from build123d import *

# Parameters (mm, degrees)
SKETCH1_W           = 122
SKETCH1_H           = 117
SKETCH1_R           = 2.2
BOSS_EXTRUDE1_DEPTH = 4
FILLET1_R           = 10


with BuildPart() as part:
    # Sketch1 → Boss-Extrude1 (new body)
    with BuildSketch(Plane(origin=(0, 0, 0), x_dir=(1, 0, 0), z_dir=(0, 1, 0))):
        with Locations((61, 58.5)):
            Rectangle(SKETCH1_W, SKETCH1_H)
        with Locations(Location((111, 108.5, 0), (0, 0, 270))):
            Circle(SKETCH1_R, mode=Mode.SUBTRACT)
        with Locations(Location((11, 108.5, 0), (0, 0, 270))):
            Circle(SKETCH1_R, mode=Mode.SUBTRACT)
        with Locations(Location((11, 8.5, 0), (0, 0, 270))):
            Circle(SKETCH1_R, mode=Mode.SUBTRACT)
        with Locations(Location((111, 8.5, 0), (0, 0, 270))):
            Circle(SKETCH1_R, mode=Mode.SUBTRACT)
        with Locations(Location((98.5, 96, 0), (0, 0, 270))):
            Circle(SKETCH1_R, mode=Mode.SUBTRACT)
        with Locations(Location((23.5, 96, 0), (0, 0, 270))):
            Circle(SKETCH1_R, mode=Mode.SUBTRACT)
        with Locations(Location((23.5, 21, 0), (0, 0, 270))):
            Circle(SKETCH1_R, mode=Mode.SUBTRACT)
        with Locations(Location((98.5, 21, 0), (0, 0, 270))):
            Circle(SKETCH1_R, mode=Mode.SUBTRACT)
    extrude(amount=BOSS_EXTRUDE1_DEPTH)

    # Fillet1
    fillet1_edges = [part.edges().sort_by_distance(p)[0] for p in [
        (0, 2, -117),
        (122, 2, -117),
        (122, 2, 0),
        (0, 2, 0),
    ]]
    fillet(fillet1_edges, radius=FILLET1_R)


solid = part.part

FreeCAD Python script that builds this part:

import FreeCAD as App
import Part
import Sketcher


def edges_at(feature, points):
    """Names of the edges that pass closest to the given points."""
    edges = feature.Shape.Edges
    near = lambda p: min(range(len(edges)), key=lambda i: edges[i].distToShape(Part.Vertex(*p))[0])
    return sorted({f"Edge{near(p) + 1}" for p in points})


def add_polygon(sketch, points):
    """Adds a closed chain of lines whose ends are joined by coincident constraints."""
    first, n = sketch.GeometryCount, len(points)
    for a, b in zip(points, points[1:] + points[:1]):
        sketch.addGeometry(Part.LineSegment(App.Vector(*a, 0), App.Vector(*b, 0)), False)
    for i in range(n):
        sketch.addConstraint(Sketcher.Constraint("Coincident", first + i, 2, first + (i + 1) % n, 1))

doc = App.newDocument("Part")
body = doc.addObject("PartDesign::Body", "Body")

# Sketch on XZ plane
sketch1 = body.newObject("Sketcher::SketchObject", "Sketch")
sketch1.AttachmentSupport = (doc.getObject("XZ_Plane"), [""])
sketch1.MapMode = "FlatFace"
add_polygon(sketch1, [(0, -117), (0, 0), (122, 0), (122, -117)])  # lines 0-3
sketch1.addGeometry(Part.Circle(App.Vector(11, -8.5, 0), App.Vector(0, 0, 1), 2.2), False)  # 4
sketch1.addGeometry(Part.Circle(App.Vector(23.5, -21, 0), App.Vector(0, 0, 1), 2.2), False)  # 5
sketch1.addGeometry(Part.Circle(App.Vector(111, -8.5, 0), App.Vector(0, 0, 1), 2.2), False)  # 6
sketch1.addGeometry(Part.Circle(App.Vector(98.5, -21, 0), App.Vector(0, 0, 1), 2.2), False)  # 7
sketch1.addGeometry(Part.Circle(App.Vector(23.5, -96, 0), App.Vector(0, 0, 1), 2.2), False)  # 8
sketch1.addGeometry(Part.Circle(App.Vector(11, -108.5, 0), App.Vector(0, 0, 1), 2.2), False)  # 9
sketch1.addGeometry(Part.Circle(App.Vector(98.5, -96, 0), App.Vector(0, 0, 1), 2.2), False)  # 10
sketch1.addGeometry(Part.Circle(App.Vector(111, -108.5, 0), App.Vector(0, 0, 1), 2.2), False)  # 11
sketch1.addConstraint([
    Sketcher.Constraint("Vertical", 0),
    Sketcher.Constraint("Horizontal", 1),
    Sketcher.Constraint("Vertical", 2),
    Sketcher.Constraint("Horizontal", 3),
    Sketcher.Constraint("Coincident", 0, 2, -1, 1),
    Sketcher.Constraint("Equal", 4, 5),
    Sketcher.Constraint("Equal", 5, 6),
    Sketcher.Constraint("Equal", 6, 7),
    Sketcher.Constraint("Equal", 7, 8),
    Sketcher.Constraint("Equal", 8, 9),
    Sketcher.Constraint("Equal", 9, 10),
    Sketcher.Constraint("Equal", 10, 11),
    Sketcher.Constraint("Horizontal", 4, 3, 6, 3),
    Sketcher.Constraint("Horizontal", 5, 3, 7, 3),
    Sketcher.Constraint("Horizontal", 8, 3, 10, 3),
    Sketcher.Constraint("Horizontal", 9, 3, 11, 3),
    Sketcher.Constraint("Vertical", 5, 3, 8, 3),
    Sketcher.Constraint("Vertical", 4, 3, 9, 3),
    Sketcher.Constraint("Vertical", 7, 3, 10, 3),
    Sketcher.Constraint("Vertical", 6, 3, 11, 3),
    Sketcher.Constraint("Diameter", 4, 4.4),
    Sketcher.Constraint("DistanceX", 1, 1, 1, 2, 122.0),
    Sketcher.Constraint("DistanceY", 0, 1, 0, 2, 117.0),
    Sketcher.Constraint("DistanceX", -1, 1, 4, 3, 11.0),
    Sketcher.Constraint("DistanceY", 5, 3, -1, 1, 21.0),
    Sketcher.Constraint("DistanceX", -1, 1, 6, 3, 111.0),
    Sketcher.Constraint("DistanceY", 8, 3, -1, 1, 96.0),
    Sketcher.Constraint("DistanceX", 5, 3, 7, 3, 75.0),
    Sketcher.Constraint("DistanceY", 9, 3, 4, 3, 100.0),
    Sketcher.Constraint("DistanceY", 4, 3, -1, 1, 8.5),
    Sketcher.Constraint("DistanceX", -1, 1, 5, 3, 23.5),
])
pad1 = body.newObject("PartDesign::Pad", "Pad")
pad1.Profile = sketch1
pad1.Length = 4
pad1.Reversed = True
doc.recompute()

fillet = body.newObject("PartDesign::Fillet", "Fillet")
fillet.Base = (pad1, edges_at(pad1, [
    (0, 2, -117),
    (122, 2, -117),
    (122, 2, 0),
    (0, 2, 0),
]))
fillet.Radius = 10

doc.recompute()
